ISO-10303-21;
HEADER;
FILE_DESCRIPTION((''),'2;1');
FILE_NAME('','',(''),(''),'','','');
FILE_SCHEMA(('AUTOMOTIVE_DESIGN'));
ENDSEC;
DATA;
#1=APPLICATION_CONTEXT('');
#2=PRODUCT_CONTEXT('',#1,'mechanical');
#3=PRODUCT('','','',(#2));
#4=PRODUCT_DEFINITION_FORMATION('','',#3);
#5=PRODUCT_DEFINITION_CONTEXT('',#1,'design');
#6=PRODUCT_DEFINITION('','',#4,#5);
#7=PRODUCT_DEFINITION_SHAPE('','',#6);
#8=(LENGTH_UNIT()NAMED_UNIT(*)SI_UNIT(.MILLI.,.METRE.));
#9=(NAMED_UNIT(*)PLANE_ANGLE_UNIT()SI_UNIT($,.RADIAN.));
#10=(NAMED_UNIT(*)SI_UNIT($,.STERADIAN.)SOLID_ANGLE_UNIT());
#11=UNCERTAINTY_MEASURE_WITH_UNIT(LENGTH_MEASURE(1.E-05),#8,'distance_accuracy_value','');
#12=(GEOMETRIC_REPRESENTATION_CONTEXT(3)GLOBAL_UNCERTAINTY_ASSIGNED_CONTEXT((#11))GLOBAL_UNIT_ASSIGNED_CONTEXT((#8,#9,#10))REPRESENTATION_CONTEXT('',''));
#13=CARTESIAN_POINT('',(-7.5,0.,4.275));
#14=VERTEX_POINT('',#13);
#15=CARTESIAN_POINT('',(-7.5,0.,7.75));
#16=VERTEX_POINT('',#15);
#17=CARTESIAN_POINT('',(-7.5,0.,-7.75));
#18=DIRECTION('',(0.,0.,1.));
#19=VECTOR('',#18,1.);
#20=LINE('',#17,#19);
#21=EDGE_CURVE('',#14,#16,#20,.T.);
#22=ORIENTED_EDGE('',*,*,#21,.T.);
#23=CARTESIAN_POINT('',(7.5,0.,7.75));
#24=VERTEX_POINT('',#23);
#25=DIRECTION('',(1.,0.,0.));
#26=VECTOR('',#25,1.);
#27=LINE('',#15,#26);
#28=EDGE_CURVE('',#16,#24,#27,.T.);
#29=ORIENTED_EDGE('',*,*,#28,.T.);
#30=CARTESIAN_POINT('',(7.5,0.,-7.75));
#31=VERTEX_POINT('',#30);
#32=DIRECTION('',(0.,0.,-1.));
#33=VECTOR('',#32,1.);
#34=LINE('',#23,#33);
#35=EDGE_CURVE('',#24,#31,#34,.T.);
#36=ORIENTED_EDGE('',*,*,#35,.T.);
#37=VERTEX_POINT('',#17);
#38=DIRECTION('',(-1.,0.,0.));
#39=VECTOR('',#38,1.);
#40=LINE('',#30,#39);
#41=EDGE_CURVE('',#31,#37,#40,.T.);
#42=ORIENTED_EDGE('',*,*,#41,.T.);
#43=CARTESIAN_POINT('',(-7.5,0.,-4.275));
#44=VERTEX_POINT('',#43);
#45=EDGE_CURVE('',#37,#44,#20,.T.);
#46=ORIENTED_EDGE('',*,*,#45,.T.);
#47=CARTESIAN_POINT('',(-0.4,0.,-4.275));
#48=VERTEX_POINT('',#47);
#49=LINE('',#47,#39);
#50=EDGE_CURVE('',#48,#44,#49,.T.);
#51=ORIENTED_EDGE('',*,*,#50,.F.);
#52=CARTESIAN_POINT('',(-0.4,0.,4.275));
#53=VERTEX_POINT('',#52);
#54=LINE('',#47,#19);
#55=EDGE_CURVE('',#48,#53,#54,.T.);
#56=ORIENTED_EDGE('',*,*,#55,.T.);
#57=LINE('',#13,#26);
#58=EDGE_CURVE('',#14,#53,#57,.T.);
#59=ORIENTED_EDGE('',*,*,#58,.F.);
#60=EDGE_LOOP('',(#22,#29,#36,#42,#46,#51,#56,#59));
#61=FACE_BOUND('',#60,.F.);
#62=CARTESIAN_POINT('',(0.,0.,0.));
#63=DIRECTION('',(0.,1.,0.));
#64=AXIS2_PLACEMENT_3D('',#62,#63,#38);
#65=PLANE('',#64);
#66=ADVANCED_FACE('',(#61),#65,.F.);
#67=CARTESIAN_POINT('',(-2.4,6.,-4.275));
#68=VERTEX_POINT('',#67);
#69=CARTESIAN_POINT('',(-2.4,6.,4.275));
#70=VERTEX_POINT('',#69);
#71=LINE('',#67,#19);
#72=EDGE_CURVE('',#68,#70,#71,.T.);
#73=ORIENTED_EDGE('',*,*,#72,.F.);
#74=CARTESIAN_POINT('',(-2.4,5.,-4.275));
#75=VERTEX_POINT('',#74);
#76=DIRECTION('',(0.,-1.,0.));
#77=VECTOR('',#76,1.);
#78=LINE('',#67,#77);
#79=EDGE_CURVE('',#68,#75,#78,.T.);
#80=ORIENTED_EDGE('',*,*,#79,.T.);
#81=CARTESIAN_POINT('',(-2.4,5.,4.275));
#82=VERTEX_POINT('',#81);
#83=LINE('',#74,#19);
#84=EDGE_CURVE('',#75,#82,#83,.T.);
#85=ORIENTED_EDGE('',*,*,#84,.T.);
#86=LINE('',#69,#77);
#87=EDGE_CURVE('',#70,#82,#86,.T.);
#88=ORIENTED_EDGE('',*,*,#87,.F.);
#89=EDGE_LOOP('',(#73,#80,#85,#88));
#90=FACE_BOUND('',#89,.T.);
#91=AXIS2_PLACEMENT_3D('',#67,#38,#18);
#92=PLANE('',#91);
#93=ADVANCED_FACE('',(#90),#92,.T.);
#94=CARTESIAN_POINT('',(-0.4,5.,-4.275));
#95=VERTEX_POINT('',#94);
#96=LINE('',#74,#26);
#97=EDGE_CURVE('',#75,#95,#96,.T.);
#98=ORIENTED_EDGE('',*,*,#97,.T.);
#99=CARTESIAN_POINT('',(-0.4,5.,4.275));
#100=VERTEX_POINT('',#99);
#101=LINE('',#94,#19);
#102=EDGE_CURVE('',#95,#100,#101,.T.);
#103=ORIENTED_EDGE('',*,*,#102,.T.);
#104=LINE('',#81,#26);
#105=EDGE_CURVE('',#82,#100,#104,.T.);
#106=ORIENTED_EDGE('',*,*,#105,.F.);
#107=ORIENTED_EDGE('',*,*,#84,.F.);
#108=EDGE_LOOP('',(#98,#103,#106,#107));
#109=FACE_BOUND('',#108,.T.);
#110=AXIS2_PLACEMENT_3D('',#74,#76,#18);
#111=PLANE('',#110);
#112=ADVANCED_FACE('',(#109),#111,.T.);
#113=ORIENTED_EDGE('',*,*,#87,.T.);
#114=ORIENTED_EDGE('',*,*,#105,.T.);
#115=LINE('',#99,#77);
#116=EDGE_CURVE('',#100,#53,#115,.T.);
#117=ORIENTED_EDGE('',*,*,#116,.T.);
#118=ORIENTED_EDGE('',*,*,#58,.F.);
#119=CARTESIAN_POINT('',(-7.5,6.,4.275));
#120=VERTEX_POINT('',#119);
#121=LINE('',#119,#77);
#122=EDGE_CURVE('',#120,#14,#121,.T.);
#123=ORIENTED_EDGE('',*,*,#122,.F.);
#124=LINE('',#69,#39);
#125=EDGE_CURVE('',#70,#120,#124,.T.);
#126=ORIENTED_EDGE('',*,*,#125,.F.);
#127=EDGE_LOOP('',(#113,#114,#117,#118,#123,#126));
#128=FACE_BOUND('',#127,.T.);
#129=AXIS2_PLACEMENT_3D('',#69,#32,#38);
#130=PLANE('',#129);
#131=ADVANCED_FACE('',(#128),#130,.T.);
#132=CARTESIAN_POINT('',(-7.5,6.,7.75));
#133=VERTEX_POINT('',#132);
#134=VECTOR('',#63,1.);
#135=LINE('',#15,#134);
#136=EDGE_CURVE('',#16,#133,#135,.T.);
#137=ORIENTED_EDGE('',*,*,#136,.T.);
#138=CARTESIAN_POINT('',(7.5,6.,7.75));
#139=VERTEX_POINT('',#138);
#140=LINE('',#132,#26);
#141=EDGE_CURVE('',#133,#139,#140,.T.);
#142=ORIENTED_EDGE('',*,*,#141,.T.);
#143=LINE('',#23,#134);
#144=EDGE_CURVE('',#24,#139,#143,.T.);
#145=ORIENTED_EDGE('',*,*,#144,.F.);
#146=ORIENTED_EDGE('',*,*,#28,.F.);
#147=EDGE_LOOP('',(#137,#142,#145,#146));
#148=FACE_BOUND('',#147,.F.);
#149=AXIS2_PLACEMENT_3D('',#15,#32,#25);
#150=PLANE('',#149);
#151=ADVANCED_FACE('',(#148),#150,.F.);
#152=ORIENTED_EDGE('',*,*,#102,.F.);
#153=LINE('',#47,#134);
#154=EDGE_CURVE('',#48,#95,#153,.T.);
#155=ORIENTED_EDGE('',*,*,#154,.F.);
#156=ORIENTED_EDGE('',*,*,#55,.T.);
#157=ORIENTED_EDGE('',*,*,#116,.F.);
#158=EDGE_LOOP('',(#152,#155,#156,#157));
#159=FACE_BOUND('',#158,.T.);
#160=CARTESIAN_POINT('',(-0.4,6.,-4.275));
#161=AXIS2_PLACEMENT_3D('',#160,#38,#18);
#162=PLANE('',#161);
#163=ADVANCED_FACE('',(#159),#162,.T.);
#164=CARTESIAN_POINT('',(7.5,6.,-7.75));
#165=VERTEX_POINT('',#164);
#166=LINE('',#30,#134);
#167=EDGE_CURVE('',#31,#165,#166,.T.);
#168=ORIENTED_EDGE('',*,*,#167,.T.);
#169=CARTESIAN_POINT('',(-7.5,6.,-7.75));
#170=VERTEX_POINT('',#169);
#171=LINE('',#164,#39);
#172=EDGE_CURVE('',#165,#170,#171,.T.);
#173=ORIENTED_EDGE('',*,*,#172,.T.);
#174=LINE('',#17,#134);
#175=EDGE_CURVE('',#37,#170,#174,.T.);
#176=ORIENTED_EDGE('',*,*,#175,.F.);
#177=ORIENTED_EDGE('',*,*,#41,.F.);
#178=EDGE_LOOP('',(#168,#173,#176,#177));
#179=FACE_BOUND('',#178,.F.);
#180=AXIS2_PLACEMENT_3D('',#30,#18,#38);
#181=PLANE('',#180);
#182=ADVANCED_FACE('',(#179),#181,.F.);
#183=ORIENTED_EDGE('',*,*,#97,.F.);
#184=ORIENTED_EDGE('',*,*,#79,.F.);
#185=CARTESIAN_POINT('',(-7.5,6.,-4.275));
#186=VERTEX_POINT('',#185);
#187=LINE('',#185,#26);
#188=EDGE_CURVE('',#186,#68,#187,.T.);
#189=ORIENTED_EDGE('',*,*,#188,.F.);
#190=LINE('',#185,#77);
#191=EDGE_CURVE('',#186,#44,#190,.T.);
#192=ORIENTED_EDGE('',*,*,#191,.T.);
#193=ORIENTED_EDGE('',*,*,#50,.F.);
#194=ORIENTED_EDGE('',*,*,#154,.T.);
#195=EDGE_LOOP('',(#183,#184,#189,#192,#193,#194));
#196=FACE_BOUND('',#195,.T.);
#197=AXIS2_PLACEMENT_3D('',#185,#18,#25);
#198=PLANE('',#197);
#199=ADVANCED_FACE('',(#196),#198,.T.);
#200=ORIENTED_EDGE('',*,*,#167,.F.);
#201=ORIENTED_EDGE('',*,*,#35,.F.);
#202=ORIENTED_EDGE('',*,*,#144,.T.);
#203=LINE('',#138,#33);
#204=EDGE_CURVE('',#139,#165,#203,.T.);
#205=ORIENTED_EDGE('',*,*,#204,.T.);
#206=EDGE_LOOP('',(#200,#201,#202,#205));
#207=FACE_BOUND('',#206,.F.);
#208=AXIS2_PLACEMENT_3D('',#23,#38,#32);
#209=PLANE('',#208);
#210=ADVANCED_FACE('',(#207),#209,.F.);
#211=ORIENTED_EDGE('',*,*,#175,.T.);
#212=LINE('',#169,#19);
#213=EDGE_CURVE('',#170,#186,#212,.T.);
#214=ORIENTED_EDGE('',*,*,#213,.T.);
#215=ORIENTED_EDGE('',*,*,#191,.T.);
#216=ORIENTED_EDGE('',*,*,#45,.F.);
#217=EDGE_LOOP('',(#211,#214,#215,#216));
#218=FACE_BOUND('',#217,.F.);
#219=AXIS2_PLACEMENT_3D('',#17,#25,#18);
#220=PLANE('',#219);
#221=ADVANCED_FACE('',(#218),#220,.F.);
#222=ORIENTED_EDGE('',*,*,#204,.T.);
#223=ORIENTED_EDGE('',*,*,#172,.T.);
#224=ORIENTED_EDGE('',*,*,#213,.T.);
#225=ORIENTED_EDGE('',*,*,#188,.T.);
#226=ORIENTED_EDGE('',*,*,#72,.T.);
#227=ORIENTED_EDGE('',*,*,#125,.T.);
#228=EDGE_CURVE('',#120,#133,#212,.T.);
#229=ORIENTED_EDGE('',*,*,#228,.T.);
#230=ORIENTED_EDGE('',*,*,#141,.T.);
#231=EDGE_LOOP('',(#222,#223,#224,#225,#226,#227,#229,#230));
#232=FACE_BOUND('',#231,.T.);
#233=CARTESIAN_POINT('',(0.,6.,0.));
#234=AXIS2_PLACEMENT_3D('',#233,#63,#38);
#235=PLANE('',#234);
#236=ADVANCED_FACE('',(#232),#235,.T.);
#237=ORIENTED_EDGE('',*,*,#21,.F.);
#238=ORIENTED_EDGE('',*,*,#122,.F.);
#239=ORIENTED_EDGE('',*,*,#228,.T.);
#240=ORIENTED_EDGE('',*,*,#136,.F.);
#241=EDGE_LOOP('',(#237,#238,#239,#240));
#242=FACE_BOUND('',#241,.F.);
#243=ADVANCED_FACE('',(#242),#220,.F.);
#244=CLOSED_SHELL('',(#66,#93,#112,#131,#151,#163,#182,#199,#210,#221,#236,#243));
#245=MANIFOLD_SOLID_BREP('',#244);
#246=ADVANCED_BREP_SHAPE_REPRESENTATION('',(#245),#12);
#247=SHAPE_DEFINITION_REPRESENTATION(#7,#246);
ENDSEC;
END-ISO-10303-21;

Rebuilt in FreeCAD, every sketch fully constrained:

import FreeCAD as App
import Part
import Sketcher
from FreeCAD import Vector
Q = App.Units.Quantity


def add_polygon(sketch, points):
    """Adds a closed chain of lines whose ends are joined by coincident constraints."""
    first, n = sketch.GeometryCount, len(points)
    for a, b in zip(points, points[1:] + points[:1]):
        sketch.addGeometry(Part.LineSegment(App.Vector(*a, 0), App.Vector(*b, 0)), False)
    for i in range(n):
        sketch.addConstraint(Sketcher.Constraint("Coincident", first + i, 2, first + (i + 1) % n, 1))

doc = App.newDocument("Part")
params = doc.addObject("Spreadsheet::Sheet", "Params")
for row, (alias, value) in enumerate([
    ("sketch1_width", "15 mm"),
    ("sketch1_height", "15.5 mm"),
    ("pad1_length", "6 mm"),
    ("sketch2_width", "5.1 mm"),
    ("sketch2_height", "8.55 mm"),
    ("pocket1_length", "8.25 mm"),
    ("sketch3_width", "5 mm"),
    ("sketch3_height", "8.55 mm"),
    ("pocket2_length", "2 mm"),
], start=1):
    params.set(f"A{row}", alias)
    params.set(f"B{row}", "=" + value)
    params.setAlias(f"B{row}", alias)

body = doc.addObject("PartDesign::Body", "Body")

sketch1 = doc.addObject("Sketcher::SketchObject", "Sketch")
body.addObject(sketch1)
sketch1.AttachmentSupport = (doc.XZ_Plane, [""])
sketch1.MapMode = "FlatFace"
add_polygon(sketch1, [(-7.5, -7.75), (-7.5, 7.75), (7.5, 7.75), (7.5, -7.75)])
sketch1.addConstraint(Sketcher.Constraint("Vertical", 0))
sketch1.addConstraint(Sketcher.Constraint("Horizontal", 1))
sketch1.addConstraint(Sketcher.Constraint("Vertical", 2))
sketch1.addConstraint(Sketcher.Constraint("Horizontal", 3))
sketch1.addConstraint(Sketcher.Constraint("Symmetric", 0, 2, 2, 2, -1, 1))
sketch1.addConstraint(Sketcher.Constraint("DistanceX", 1, 1, 1, 2, Q("15 mm")))
sketch1.addConstraint(Sketcher.Constraint("DistanceY", 0, 1, 0, 2, Q("15.5 mm")))
sketch1.setExpression("Constraints[9]", "Params.sketch1_width")
sketch1.setExpression("Constraints[10]", "Params.sketch1_height")
pad1 = doc.addObject("PartDesign::Pad", "Pad")
body.addObject(pad1)
pad1.Profile = sketch1
pad1.setExpression("Length", "Params.pad1_length")
pad1.Reversed = True

sketch2 = doc.addObject("Sketcher::SketchObject", "Sketch001")
body.addObject(sketch2)
sketch2.AttachmentSupport = (doc.XZ_Plane, [""])
sketch2.MapMode = "FlatFace"
sketch2.AttachmentOffset = App.Placement(Vector(0, 0, -6), App.Rotation())
add_polygon(sketch2, [(-2.4, -4.275), (-7.5, -4.275), (-7.5, 4.275), (-2.4, 4.275)])
sketch2.addConstraint(Sketcher.Constraint("Horizontal", 0))
sketch2.addConstraint(Sketcher.Constraint("Vertical", 1))
sketch2.addConstraint(Sketcher.Constraint("Horizontal", 2))
sketch2.addConstraint(Sketcher.Constraint("Vertical", 3))
sketch2.addConstraint(Sketcher.Constraint("DistanceX", 0, 2, 0, 1, Q("5.1 mm")))
sketch2.addConstraint(Sketcher.Constraint("DistanceY", 1, 1, 1, 2, Q("8.55 mm")))
sketch2.addConstraint(Sketcher.Constraint("DistanceX", 0, 2, -1, 1, Q("7.5 mm")))
sketch2.addConstraint(Sketcher.Constraint("DistanceY", 0, 2, -1, 1, Q("4.275 mm")))
sketch2.setExpression("Constraints[8]", "Params.sketch2_width")
sketch2.setExpression("Constraints[9]", "Params.sketch2_height")
pocket1 = doc.addObject("PartDesign::Pocket", "Pocket")
body.addObject(pocket1)
pocket1.Profile = sketch2
pocket1.setExpression("Length", "Params.pocket1_length")
pocket1.Reversed = True

sketch3 = doc.addObject("Sketcher::SketchObject", "Sketch002")
body.addObject(sketch3)
sketch3.AttachmentSupport = (doc.YZ_Plane, [""])
sketch3.MapMode = "FlatFace"
sketch3.AttachmentOffset = App.Placement(Vector(0, 0, -2.4), App.Rotation())
add_polygon(sketch3, [(5, 4.275), (5, -4.275), (0, -4.275), (0, 4.275)])
sketch3.addConstraint(Sketcher.Constraint("Vertical", 0))
sketch3.addConstraint(Sketcher.Constraint("Horizontal", 1))
sketch3.addConstraint(Sketcher.Constraint("Vertical", 2))
sketch3.addConstraint(Sketcher.Constraint("Horizontal", 3))
sketch3.addConstraint(Sketcher.Constraint("Symmetric", 1, 2, 2, 2, -1, 1))
sketch3.addConstraint(Sketcher.Constraint("DistanceX", 1, 2, 1, 1, Q("5 mm")))
sketch3.addConstraint(Sketcher.Constraint("DistanceY", 0, 2, 0, 1, Q("8.55 mm")))
sketch3.setExpression("Constraints[9]", "Params.sketch3_width")
sketch3.setExpression("Constraints[10]", "Params.sketch3_height")
pocket2 = doc.addObject("PartDesign::Pocket", "Pocket001")
body.addObject(pocket2)
pocket2.Profile = sketch3
pocket2.setExpression("Length", "Params.pocket2_length")
pocket2.Reversed = True

doc.recompute()
